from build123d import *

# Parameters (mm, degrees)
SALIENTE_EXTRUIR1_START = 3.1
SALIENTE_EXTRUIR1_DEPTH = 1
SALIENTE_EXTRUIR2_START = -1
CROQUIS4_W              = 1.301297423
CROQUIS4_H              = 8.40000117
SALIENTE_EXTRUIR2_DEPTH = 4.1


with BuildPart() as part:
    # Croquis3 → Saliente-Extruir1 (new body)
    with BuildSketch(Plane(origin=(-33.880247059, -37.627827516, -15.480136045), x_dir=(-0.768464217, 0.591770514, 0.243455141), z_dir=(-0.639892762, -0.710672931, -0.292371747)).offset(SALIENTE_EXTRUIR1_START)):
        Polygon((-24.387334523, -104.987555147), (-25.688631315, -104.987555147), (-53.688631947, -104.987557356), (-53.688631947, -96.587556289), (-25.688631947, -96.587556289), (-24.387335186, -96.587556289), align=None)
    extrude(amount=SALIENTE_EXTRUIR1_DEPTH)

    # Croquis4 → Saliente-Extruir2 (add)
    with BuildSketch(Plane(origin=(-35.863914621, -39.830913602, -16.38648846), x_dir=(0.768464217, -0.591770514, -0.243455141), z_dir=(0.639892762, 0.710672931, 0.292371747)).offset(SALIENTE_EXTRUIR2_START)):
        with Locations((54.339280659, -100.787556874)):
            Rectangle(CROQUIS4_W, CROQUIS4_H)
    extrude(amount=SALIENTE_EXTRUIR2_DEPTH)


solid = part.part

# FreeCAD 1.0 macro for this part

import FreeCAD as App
import Part
import Sketcher
from FreeCAD import Vector
Q = App.Units.Quantity


def add_polygon(sketch, points):
    """Adds a closed chain of lines whose ends are joined by coincident constraints."""
    first, n = sketch.GeometryCount, len(points)
    for a, b in zip(points, points[1:] + points[:1]):
        sketch.addGeometry(Part.LineSegment(App.Vector(*a, 0), App.Vector(*b, 0)), False)
    for i in range(n):
        sketch.addConstraint(Sketcher.Constraint("Coincident", first + i, 2, first + (i + 1) % n, 1))

doc = App.newDocument("Part")
params = doc.addObject("Spreadsheet::Sheet", "Params")
for row, (alias, value) in enumerate([
    ("sketch1_length", "28.000001 mm"),
    ("sketch1_height", "8.399999 mm"),
    ("pad1_length", "1 mm"),
    ("sketch2_height", "8.400001 mm"),
    ("pad2_length", "4.1 mm"),
], start=1):
    params.set(f"A{row}", alias)
    params.set(f"B{row}", "=" + value)
    params.setAlias(f"B{row}", alias)

body = doc.addObject("PartDesign::Body", "Body")

sketch1 = body.newObject("Sketcher::SketchObject", "Sketch")
sketch1.Placement = App.Placement(Vector(-35.863915, -39.830914, -16.386488), App.Rotation(Vector(-0.768464217, 0.591770514, 0.243455141), Vector(0, 0.380462408, -0.924796386), Vector(-0.639892762, -0.710672931, -0.292371747), "ZXY"))
add_polygon(sketch1, [(-25.688631, -104.987555), (-24.387335, -104.987555), (-24.387335, -96.587556), (-53.688632, -96.587556), (-53.688632, -104.987557)])
sketch1.addConstraint([
    Sketcher.Constraint("Horizontal", 0),
    Sketcher.Constraint("Vertical", 1),
    Sketcher.Constraint("Horizontal", 2),
    Sketcher.Constraint("Vertical", 3),
    Sketcher.Constraint("Angle", 4, Q("0.000005 deg")),
    Sketcher.Constraint("Distance", 4, Q("28.000001 mm")),
    Sketcher.Constraint("DistanceY", 1, 1, 1, 2, Q("8.399999 mm")),
    Sketcher.Constraint("DistanceX", 0, 1, 0, 2, Q("1.301297 mm")),
    Sketcher.Constraint("DistanceX", 2, 2, -1, 1, Q("53.688632 mm")),
    Sketcher.Constraint("DistanceY", 0, 2, -1, 1, Q("104.987555 mm")),
])
sketch1.setExpression("Constraints[10]", "Params.sketch1_length")
sketch1.setExpression("Constraints[11]", "Params.sketch1_height")
pad1 = body.newObject("PartDesign::Pad", "Pad")
pad1.Profile = sketch1
pad1.setExpression("Length", "Params.pad1_length")

sketch2 = body.newObject("Sketcher::SketchObject", "Sketch001")
sketch2.Placement = App.Placement(Vector(-36.503807, -40.541587, -16.67886), App.Rotation(Vector(0.768464217, -0.591770514, -0.243455141), Vector(0, 0.380462408, -0.924796386), Vector(0.639892762, 0.710672931, 0.292371747), "ZXY"))
add_polygon(sketch2, [(53.688632, -96.587556), (53.688632, -104.987557), (54.989929, -104.987557), (54.989929, -96.587556)])
sketch2.addConstraint([
    Sketcher.Constraint("Vertical", 0),
    Sketcher.Constraint("Horizontal", 1),
    Sketcher.Constraint("Vertical", 2),
    Sketcher.Constraint("Horizontal", 3),
    Sketcher.Constraint("DistanceY", 0, 2, 0, 1, Q("8.400001 mm")),
    Sketcher.Constraint("DistanceX", 1, 1, 1, 2, Q("1.301297 mm")),
    Sketcher.Constraint("DistanceX", -1, 1, 0, 2, Q("53.688632 mm")),
    Sketcher.Constraint("DistanceY", 0, 2, -1, 1, Q("104.987557 mm")),
])
sketch2.setExpression("Constraints[8]", "Params.sketch2_height")
pad2 = body.newObject("PartDesign::Pad", "Pad001")
pad2.Profile = sketch2
pad2.setExpression("Length", "Params.pad2_length")

doc.recompute()
